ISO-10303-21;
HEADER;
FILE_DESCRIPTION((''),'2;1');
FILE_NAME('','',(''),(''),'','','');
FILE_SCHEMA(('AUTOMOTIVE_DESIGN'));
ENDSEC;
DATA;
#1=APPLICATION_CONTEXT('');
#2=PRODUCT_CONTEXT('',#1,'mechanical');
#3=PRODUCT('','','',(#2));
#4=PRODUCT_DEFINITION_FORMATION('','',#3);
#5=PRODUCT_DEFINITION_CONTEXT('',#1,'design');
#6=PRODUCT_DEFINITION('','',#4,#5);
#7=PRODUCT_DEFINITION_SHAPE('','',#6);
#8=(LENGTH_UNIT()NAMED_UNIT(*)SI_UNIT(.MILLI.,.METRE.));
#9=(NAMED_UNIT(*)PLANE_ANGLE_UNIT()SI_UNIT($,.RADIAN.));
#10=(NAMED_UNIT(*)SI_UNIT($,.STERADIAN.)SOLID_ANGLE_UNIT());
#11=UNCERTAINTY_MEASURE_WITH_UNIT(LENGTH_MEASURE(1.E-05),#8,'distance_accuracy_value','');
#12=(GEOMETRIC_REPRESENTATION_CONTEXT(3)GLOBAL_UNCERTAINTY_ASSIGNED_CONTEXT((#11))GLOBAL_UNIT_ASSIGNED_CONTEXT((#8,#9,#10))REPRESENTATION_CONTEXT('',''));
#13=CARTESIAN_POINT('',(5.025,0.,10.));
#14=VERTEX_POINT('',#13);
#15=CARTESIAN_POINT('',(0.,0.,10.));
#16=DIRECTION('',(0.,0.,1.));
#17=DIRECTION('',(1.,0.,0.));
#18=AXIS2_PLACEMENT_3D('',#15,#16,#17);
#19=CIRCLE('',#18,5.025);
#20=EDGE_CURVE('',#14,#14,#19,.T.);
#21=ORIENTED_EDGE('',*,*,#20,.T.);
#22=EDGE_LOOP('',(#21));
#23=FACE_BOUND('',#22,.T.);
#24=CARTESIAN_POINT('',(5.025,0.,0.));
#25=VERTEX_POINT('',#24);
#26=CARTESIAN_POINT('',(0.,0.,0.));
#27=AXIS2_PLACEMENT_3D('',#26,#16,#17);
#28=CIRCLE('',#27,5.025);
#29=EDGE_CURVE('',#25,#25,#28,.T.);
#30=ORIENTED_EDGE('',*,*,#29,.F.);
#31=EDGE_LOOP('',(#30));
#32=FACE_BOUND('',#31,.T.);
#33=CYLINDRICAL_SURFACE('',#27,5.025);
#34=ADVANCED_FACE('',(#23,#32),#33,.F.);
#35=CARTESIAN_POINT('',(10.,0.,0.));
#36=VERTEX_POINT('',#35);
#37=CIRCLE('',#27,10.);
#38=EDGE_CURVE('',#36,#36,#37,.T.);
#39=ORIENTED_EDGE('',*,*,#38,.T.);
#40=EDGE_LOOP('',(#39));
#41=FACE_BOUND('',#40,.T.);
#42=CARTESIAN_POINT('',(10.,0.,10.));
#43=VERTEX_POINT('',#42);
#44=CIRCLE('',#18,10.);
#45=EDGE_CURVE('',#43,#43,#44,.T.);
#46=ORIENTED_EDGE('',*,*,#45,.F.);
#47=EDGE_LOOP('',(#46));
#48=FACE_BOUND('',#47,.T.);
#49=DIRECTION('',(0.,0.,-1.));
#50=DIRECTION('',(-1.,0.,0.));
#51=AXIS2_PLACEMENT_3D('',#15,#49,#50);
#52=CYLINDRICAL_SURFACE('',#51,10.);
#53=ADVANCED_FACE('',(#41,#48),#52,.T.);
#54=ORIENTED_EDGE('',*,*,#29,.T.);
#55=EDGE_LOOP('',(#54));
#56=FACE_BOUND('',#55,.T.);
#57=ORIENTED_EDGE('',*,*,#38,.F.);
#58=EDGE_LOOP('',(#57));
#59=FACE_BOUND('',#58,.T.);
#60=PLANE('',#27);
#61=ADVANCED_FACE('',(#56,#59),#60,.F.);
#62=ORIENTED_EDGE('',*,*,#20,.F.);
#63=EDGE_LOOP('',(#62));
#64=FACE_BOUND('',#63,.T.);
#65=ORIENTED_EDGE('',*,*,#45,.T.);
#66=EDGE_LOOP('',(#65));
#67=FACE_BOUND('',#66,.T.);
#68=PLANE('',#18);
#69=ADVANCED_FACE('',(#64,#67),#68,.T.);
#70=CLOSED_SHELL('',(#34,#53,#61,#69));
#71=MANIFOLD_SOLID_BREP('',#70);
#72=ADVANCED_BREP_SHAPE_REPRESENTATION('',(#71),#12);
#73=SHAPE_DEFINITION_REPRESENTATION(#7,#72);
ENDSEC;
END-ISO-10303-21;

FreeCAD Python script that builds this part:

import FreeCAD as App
import Part
import Sketcher

V = App.Vector

doc = App.newDocument("Part")
body = doc.addObject("PartDesign::Body", "Body")

# Sketch on XY plane
sketch1 = doc.addObject("Sketcher::SketchObject", "Sketch")
body.addObject(sketch1)
sketch1.AttachmentSupport = (doc.XY_Plane, [""])
sketch1.MapMode = "FlatFace"
sketch1.addGeometry(Part.Circle(V(0, 0, 0), V(0, 0, 1), 10), False)
sketch1.addConstraint([
    Sketcher.Constraint("Coincident", 0, 3, -1, 1),
    Sketcher.Constraint("Diameter", 0, 20.0),
])
pad1 = doc.addObject("PartDesign::Pad", "Pad")
body.addObject(pad1)
pad1.Profile = sketch1
pad1.Length = 10

# Sketch on XY plane
sketch2 = doc.addObject("Sketcher::SketchObject", "Sketch001")
body.addObject(sketch2)
sketch2.AttachmentSupport = (doc.XY_Plane, [""])
sketch2.MapMode = "FlatFace"
sketch2.AttachmentOffset = App.Placement(V(0, 0, 10), App.Rotation())
sketch2.addGeometry(Part.Circle(V(0, 0, 0), V(0, 0, 1), 5), False)
sketch2.addConstraint([
    Sketcher.Constraint("Coincident", 0, 3, -1, 1),
    Sketcher.Constraint("Diameter", 0, 10.05),
])
pocket1 = doc.addObject("PartDesign::Pocket", "Pocket")
body.addObject(pocket1)
pocket1.Profile = sketch2
pocket1.Length = 10

doc.recompute()
